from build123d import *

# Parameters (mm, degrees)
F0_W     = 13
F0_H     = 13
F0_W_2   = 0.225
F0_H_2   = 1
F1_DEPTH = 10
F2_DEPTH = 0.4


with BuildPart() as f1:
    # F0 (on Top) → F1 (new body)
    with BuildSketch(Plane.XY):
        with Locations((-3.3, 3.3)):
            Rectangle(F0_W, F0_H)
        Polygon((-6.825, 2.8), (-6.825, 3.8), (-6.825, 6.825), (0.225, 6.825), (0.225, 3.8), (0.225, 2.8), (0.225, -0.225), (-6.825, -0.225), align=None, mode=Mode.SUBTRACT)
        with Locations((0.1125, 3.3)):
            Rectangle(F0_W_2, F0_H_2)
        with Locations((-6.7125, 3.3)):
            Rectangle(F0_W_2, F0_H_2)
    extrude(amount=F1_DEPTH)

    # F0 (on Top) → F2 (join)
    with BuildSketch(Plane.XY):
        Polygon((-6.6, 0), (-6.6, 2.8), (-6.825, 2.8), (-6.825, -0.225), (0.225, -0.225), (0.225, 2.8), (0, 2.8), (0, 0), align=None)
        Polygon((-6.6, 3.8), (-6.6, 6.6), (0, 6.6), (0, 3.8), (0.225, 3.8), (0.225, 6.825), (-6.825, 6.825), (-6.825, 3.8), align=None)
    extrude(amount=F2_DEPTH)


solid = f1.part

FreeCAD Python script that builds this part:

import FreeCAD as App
import Part
import Sketcher

V = App.Vector

doc = App.newDocument("Part")
body = doc.addObject("PartDesign::Body", "Body")

# Sketch on XY plane
sketch1 = body.newObject("Sketcher::SketchObject", "Sketch")
sketch1.AttachmentSupport = (doc.getObject("XY_Plane"), [""])
sketch1.MapMode = "FlatFace"
sketch1.addGeometry([
    Part.LineSegment(V(-9.8, 9.8, 0), V(-9.8, -3.2, 0)),  # 0
    Part.LineSegment(V(-9.8, -3.2, 0), V(3.2, -3.2, 0)),  # 1
    Part.LineSegment(V(3.2, -3.2, 0), V(3.2, 9.8, 0)),  # 2
    Part.LineSegment(V(3.2, 9.8, 0), V(-9.8, 9.8, 0)),  # 3
    Part.LineSegment(V(-6.825, -0.225, 0), V(-6.825, 2.8, 0)),  # 4
    Part.LineSegment(V(-6.825, 2.8, 0), V(-6.6, 2.8, 0)),  # 5
    Part.LineSegment(V(-6.6, 2.8, 0), V(-6.6, 3.8, 0)),  # 6
    Part.LineSegment(V(-6.6, 3.8, 0), V(-6.825, 3.8, 0)),  # 7
    Part.LineSegment(V(-6.825, 3.8, 0), V(-6.825, 6.825, 0)),  # 8
    Part.LineSegment(V(-6.825, 6.825, 0), V(0.225, 6.825, 0)),  # 9
    Part.LineSegment(V(0.225, 6.825, 0), V(0.225, 3.8, 0)),  # 10
    Part.LineSegment(V(0.225, 3.8, 0), V(0, 3.8, 0)),  # 11
    Part.LineSegment(V(0, 3.8, 0), V(0, 2.8, 0)),  # 12
    Part.LineSegment(V(0, 2.8, 0), V(0.225, 2.8, 0)),  # 13
    Part.LineSegment(V(0.225, 2.8, 0), V(0.225, -0.225, 0)),  # 14
    Part.LineSegment(V(0.225, -0.225, 0), V(-6.825, -0.225, 0)),  # 15
], False)
sketch1.addConstraint([
    Sketcher.Constraint("Coincident", 0, 2, 1, 1),
    Sketcher.Constraint("Coincident", 1, 2, 2, 1),
    Sketcher.Constraint("Coincident", 2, 2, 3, 1),
    Sketcher.Constraint("Coincident", 3, 2, 0, 1),
    Sketcher.Constraint("Coincident", 4, 2, 5, 1),
    Sketcher.Constraint("Coincident", 5, 2, 6, 1),
    Sketcher.Constraint("Coincident", 6, 2, 7, 1),
    Sketcher.Constraint("Coincident", 7, 2, 8, 1),
    Sketcher.Constraint("Coincident", 8, 2, 9, 1),
    Sketcher.Constraint("Coincident", 9, 2, 10, 1),
    Sketcher.Constraint("Coincident", 10, 2, 11, 1),
    Sketcher.Constraint("Coincident", 11, 2, 12, 1),
    Sketcher.Constraint("Coincident", 12, 2, 13, 1),
    Sketcher.Constraint("Coincident", 13, 2, 14, 1),
    Sketcher.Constraint("Coincident", 14, 2, 15, 1),
    Sketcher.Constraint("Coincident", 15, 2, 4, 1),
    Sketcher.Constraint("Vertical", 0),
    Sketcher.Constraint("Horizontal", 1),
    Sketcher.Constraint("Vertical", 2),
    Sketcher.Constraint("Horizontal", 3),
    Sketcher.Constraint("Vertical", 4),
    Sketcher.Constraint("Horizontal", 5),
    Sketcher.Constraint("Vertical", 6),
    Sketcher.Constraint("Horizontal", 7),
    Sketcher.Constraint("Vertical", 8),
    Sketcher.Constraint("Horizontal", 9),
    Sketcher.Constraint("Vertical", 10),
    Sketcher.Constraint("Horizontal", 11),
    Sketcher.Constraint("Vertical", 12),
    Sketcher.Constraint("Horizontal", 13),
    Sketcher.Constraint("Vertical", 14),
    Sketcher.Constraint("Horizontal", 15),
    Sketcher.Constraint("PointOnObject", 11, 2, -2),
    Sketcher.Constraint("Horizontal", 7, 2, 10, 2),
    Sketcher.Constraint("Horizontal", 5, 2, 12, 2),
    Sketcher.Constraint("Vertical", 4, 2, 7, 2),
    Sketcher.Constraint("Vertical", 10, 2, 13, 2),
    Sketcher.Constraint("Equal", 7, 11),
    Sketcher.Constraint("Equal", 3, 0),
    Sketcher.Constraint("Equal", 4, 8),
    Sketcher.Constraint("DistanceX", 1, 1, 1, 2, 13.0),
    Sketcher.Constraint("DistanceY", 6, 1, 6, 2, 1.0),
    Sketcher.Constraint("DistanceY", 0, 2, 4, 2, 6.0),
    Sketcher.Constraint("DistanceX", 9, 1, 9, 2, 7.05),
    Sketcher.Constraint("DistanceX", 0, 2, -1, 1, 9.8),
    Sketcher.Constraint("DistanceY", 0, 2, -1, 1, 3.2),
    Sketcher.Constraint("DistanceX", 5, 2, -1, 1, 6.6),
    Sketcher.Constraint("DistanceY", 4, 1, 4, 2, 3.025),
])
pad1 = body.newObject("PartDesign::Pad", "Pad")
pad1.Profile = sketch1
pad1.Length = 10

# Sketch on XY plane
sketch2 = body.newObject("Sketcher::SketchObject", "Sketch001")
sketch2.AttachmentSupport = (doc.getObject("XY_Plane"), [""])
sketch2.MapMode = "FlatFace"
sketch2.addGeometry([
    Part.LineSegment(V(-6.6, 0, 0), V(-6.6, 2.8, 0)),  # 0
    Part.LineSegment(V(-6.6, 2.8, 0), V(-6.825, 2.8, 0)),  # 1
    Part.LineSegment(V(-6.825, 2.8, 0), V(-6.825, -0.225, 0)),  # 2
    Part.LineSegment(V(-6.825, -0.225, 0), V(0.225, -0.225, 0)),  # 3
    Part.LineSegment(V(0.225, -0.225, 0), V(0.225, 2.8, 0)),  # 4
    Part.LineSegment(V(0.225, 2.8, 0), V(0, 2.8, 0)),  # 5
    Part.LineSegment(V(0, 2.8, 0), V(0, 0, 0)),  # 6
    Part.LineSegment(V(0, 0, 0), V(-6.6, 0, 0)),  # 7
    Part.LineSegment(V(-6.6, 3.8, 0), V(-6.6, 6.6, 0)),  # 8
    Part.LineSegment(V(-6.6, 6.6, 0), V(0, 6.6, 0)),  # 9
    Part.LineSegment(V(0, 6.6, 0), V(0, 3.8, 0)),  # 10
    Part.LineSegment(V(0, 3.8, 0), V(0.225, 3.8, 0)),  # 11
    Part.LineSegment(V(0.225, 3.8, 0), V(0.225, 6.825, 0)),  # 12
    Part.LineSegment(V(0.225, 6.825, 0), V(-6.825, 6.825, 0)),  # 13
    Part.LineSegment(V(-6.825, 6.825, 0), V(-6.825, 3.8, 0)),  # 14
    Part.LineSegment(V(-6.825, 3.8, 0), V(-6.6, 3.8, 0)),  # 15
], False)
sketch2.addConstraint([
    Sketcher.Constraint("Coincident", 0, 2, 1, 1),
    Sketcher.Constraint("Coincident", 1, 2, 2, 1),
    Sketcher.Constraint("Coincident", 2, 2, 3, 1),
    Sketcher.Constraint("Coincident", 3, 2, 4, 1),
    Sketcher.Constraint("Coincident", 4, 2, 5, 1),
    Sketcher.Constraint("Coincident", 5, 2, 6, 1),
    Sketcher.Constraint("Coincident", 6, 2, 7, 1),
    Sketcher.Constraint("Coincident", 7, 2, 0, 1),
    Sketcher.Constraint("Coincident", 8, 2, 9, 1),
    Sketcher.Constraint("Coincident", 9, 2, 10, 1),
    Sketcher.Constraint("Coincident", 10, 2, 11, 1),
    Sketcher.Constraint("Coincident", 11, 2, 12, 1),
    Sketcher.Constraint("Coincident", 12, 2, 13, 1),
    Sketcher.Constraint("Coincident", 13, 2, 14, 1),
    Sketcher.Constraint("Coincident", 14, 2, 15, 1),
    Sketcher.Constraint("Coincident", 15, 2, 8, 1),
    Sketcher.Constraint("Vertical", 0),
    Sketcher.Constraint("Horizontal", 1),
    Sketcher.Constraint("Vertical", 2),
    Sketcher.Constraint("Horizontal", 3),
    Sketcher.Constraint("Vertical", 4),
    Sketcher.Constraint("Horizontal", 5),
    Sketcher.Constraint("Vertical", 6),
    Sketcher.Constraint("Horizontal", 7),
    Sketcher.Constraint("Vertical", 8),
    Sketcher.Constraint("Horizontal", 9),
    Sketcher.Constraint("Vertical", 10),
    Sketcher.Constraint("Horizontal", 11),
    Sketcher.Constraint("Vertical", 12),
    Sketcher.Constraint("Horizontal", 13),
    Sketcher.Constraint("Vertical", 14),
    Sketcher.Constraint("Horizontal", 15),
    Sketcher.Constraint("Coincident", 6, 2, -1, 1),
    Sketcher.Constraint("PointOnObject", 9, 2, -2),
    Sketcher.Constraint("Horizontal", 1, 2, 4, 2),
    Sketcher.Constraint("Horizontal", 11, 2, 14, 2),
    Sketcher.Constraint("Vertical", 7, 2, 8, 2),
    Sketcher.Constraint("Vertical", 4, 2, 11, 2),
    Sketcher.Constraint("Vertical", 2, 2, 13, 2),
    Sketcher.Constraint("Equal", 1, 5),
    Sketcher.Constraint("Equal", 6, 8),
    Sketcher.Constraint("Equal", 4, 12),
    Sketcher.Constraint("DistanceX", 7, 2, 7, 1, 6.6),
    Sketcher.Constraint("DistanceY", 0, 1, 0, 2, 2.8),
    Sketcher.Constraint("DistanceY", 5, 2, 10, 2, 1.0),
    Sketcher.Constraint("DistanceX", 3, 1, 3, 2, 7.05),
    Sketcher.Constraint("DistanceY", 2, 2, 2, 1, 3.025),
])
pad2 = body.newObject("PartDesign::Pad", "Pad001")
pad2.Profile = sketch2
pad2.Length = 0.4

doc.recompute()
